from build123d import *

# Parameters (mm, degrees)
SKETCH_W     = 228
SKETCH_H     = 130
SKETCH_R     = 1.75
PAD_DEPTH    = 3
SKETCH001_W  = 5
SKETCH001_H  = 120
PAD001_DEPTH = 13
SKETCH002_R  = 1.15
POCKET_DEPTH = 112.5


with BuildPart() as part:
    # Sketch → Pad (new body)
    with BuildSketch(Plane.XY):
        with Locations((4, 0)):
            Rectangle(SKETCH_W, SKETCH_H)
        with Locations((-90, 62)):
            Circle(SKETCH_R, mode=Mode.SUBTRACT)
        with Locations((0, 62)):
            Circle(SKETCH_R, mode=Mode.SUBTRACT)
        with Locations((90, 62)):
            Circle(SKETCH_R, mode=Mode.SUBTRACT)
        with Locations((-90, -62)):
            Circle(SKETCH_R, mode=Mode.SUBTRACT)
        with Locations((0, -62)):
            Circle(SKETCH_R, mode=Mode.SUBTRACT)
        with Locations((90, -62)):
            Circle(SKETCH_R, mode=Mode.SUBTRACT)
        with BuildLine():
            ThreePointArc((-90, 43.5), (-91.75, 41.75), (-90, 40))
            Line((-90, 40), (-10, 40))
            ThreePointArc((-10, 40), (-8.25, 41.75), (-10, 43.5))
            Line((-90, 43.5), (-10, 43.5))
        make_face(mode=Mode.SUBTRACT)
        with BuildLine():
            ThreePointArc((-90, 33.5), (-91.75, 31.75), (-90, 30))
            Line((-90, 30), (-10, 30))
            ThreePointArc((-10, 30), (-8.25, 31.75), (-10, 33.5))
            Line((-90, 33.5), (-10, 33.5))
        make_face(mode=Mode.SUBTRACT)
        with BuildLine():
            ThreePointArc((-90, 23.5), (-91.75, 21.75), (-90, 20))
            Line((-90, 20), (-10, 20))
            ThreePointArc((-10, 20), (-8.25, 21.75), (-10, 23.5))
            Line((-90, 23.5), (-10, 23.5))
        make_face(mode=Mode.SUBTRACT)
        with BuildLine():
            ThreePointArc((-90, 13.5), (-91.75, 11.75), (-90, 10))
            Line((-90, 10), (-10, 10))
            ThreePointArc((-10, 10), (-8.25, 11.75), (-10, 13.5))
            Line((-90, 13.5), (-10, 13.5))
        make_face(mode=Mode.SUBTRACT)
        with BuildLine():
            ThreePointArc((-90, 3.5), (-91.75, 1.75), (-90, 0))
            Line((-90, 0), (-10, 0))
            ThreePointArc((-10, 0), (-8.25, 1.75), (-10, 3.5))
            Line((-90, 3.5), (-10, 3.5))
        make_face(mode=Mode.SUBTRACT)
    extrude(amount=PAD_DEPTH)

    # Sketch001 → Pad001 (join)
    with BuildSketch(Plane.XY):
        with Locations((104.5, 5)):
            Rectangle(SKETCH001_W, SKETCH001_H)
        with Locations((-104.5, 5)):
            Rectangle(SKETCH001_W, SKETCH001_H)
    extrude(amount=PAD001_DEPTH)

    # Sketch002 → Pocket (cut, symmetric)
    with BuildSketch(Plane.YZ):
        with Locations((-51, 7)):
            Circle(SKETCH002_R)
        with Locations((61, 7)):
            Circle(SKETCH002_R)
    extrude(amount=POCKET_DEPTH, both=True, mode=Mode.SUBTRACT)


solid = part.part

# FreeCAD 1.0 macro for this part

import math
import FreeCAD as App
import Part
import Sketcher

V = App.Vector
Q = App.Units.Quantity


def add_polygon(sketch, points):
    """Adds a closed chain of lines whose ends are joined by coincident constraints."""
    first, n = sketch.GeometryCount, len(points)
    for a, b in zip(points, points[1:] + points[:1]):
        sketch.addGeometry(Part.LineSegment(App.Vector(*a, 0), App.Vector(*b, 0)), False)
    for i in range(n):
        sketch.addConstraint(Sketcher.Constraint("Coincident", first + i, 2, first + (i + 1) % n, 1))

doc = App.newDocument("Part")
body = doc.addObject("PartDesign::Body", "Body")

sketch1 = body.newObject("Sketcher::SketchObject", "Sketch")
sketch1.AttachmentSupport = (doc.getObject("XY_Plane"), [""])
sketch1.MapMode = "FlatFace"
add_polygon(sketch1, [(-110, 65), (-110, -65), (118, -65), (118, 65)])
sketch1.addGeometry(Part.Circle(V(-90, -62, 0), V(0, 0, 1), 1.75), False)
sketch1.addGeometry(Part.Circle(V(0, -62, 0), V(0, 0, 1), 1.75), False)
sketch1.addGeometry(Part.Circle(V(90, -62, 0), V(0, 0, 1), 1.75), False)
sketch1.addGeometry(Part.ArcOfCircle(Part.Circle(V(-90, 1.75, 0), V(0, 0, 1), 1.75), math.radians(90), math.radians(270)), False)
sketch1.addGeometry(Part.LineSegment(V(-90, 3.5, 0), V(-10, 3.5, 0)), False)
sketch1.addGeometry(Part.ArcOfCircle(Part.Circle(V(-10, 1.75, 0), V(0, 0, 1), 1.75), math.radians(-90), math.radians(90)), False)
sketch1.addGeometry(Part.LineSegment(V(-10, 0, 0), V(-90, 0, 0)), False)
sketch1.addGeometry(Part.ArcOfCircle(Part.Circle(V(-90, 11.75, 0), V(0, 0, 1), 1.75), math.radians(90), math.radians(270)), False)
sketch1.addGeometry(Part.LineSegment(V(-90, 13.5, 0), V(-10, 13.5, 0)), False)
sketch1.addGeometry(Part.ArcOfCircle(Part.Circle(V(-10, 11.75, 0), V(0, 0, 1), 1.75), math.radians(-90), math.radians(90)), False)
sketch1.addGeometry(Part.LineSegment(V(-10, 10, 0), V(-90, 10, 0)), False)
sketch1.addGeometry(Part.ArcOfCircle(Part.Circle(V(-90, 21.75, 0), V(0, 0, 1), 1.75), math.radians(90), math.radians(270)), False)
sketch1.addGeometry(Part.LineSegment(V(-90, 23.5, 0), V(-10, 23.5, 0)), False)
sketch1.addGeometry(Part.ArcOfCircle(Part.Circle(V(-10, 21.75, 0), V(0, 0, 1), 1.75), math.radians(-90), math.radians(90)), False)
sketch1.addGeometry(Part.LineSegment(V(-10, 20, 0), V(-90, 20, 0)), False)
sketch1.addGeometry(Part.ArcOfCircle(Part.Circle(V(-90, 31.75, 0), V(0, 0, 1), 1.75), math.radians(90), math.radians(270)), False)
sketch1.addGeometry(Part.LineSegment(V(-90, 33.5, 0), V(-10, 33.5, 0)), False)
sketch1.addGeometry(Part.ArcOfCircle(Part.Circle(V(-10, 31.75, 0), V(0, 0, 1), 1.75), math.radians(-90), math.radians(90)), False)
sketch1.addGeometry(Part.LineSegment(V(-10, 30, 0), V(-90, 30, 0)), False)
sketch1.addGeometry(Part.ArcOfCircle(Part.Circle(V(-90, 41.75, 0), V(0, 0, 1), 1.75), math.radians(90), math.radians(270)), False)
sketch1.addGeometry(Part.LineSegment(V(-90, 43.5, 0), V(-10, 43.5, 0)), False)
sketch1.addGeometry(Part.ArcOfCircle(Part.Circle(V(-10, 41.75, 0), V(0, 0, 1), 1.75), math.radians(-90), math.radians(90)), False)
sketch1.addGeometry(Part.LineSegment(V(-10, 40, 0), V(-90, 40, 0)), False)
sketch1.addGeometry(Part.Circle(V(-90, 62, 0), V(0, 0, 1), 1.75), False)
sketch1.addGeometry(Part.Circle(V(0, 62, 0), V(0, 0, 1), 1.75), False)
sketch1.addGeometry(Part.Circle(V(90, 62, 0), V(0, 0, 1), 1.75), False)
sketch1.addConstraint([
    Sketcher.Constraint("Tangent", 7, 1, 8, 1),
    Sketcher.Constraint("Tangent", 8, 2, 9, 2),
    Sketcher.Constraint("Tangent", 9, 1, 10, 1),
    Sketcher.Constraint("Tangent", 10, 2, 7, 2),
    Sketcher.Constraint("Tangent", 11, 1, 12, 1),
    Sketcher.Constraint("Tangent", 12, 2, 13, 2),
    Sketcher.Constraint("Tangent", 13, 1, 14, 1),
    Sketcher.Constraint("Tangent", 14, 2, 11, 2),
    Sketcher.Constraint("Tangent", 15, 1, 16, 1),
    Sketcher.Constraint("Tangent", 16, 2, 17, 2),
    Sketcher.Constraint("Tangent", 17, 1, 18, 1),
    Sketcher.Constraint("Tangent", 18, 2, 15, 2),
    Sketcher.Constraint("Tangent", 19, 1, 20, 1),
    Sketcher.Constraint("Tangent", 20, 2, 21, 2),
    Sketcher.Constraint("Tangent", 21, 1, 22, 1),
    Sketcher.Constraint("Tangent", 22, 2, 19, 2),
    Sketcher.Constraint("Tangent", 23, 1, 24, 1),
    Sketcher.Constraint("Tangent", 24, 2, 25, 2),
    Sketcher.Constraint("Tangent", 25, 1, 26, 1),
    Sketcher.Constraint("Tangent", 26, 2, 23, 2),
    Sketcher.Constraint("Vertical", 0),
    Sketcher.Constraint("Horizontal", 1),
    Sketcher.Constraint("Vertical", 2),
    Sketcher.Constraint("Horizontal", 3),
    Sketcher.Constraint("Horizontal", 8),
    Sketcher.Constraint("Horizontal", 10),
    Sketcher.Constraint("Horizontal", 12),
    Sketcher.Constraint("Horizontal", 14),
    Sketcher.Constraint("Horizontal", 16),
    Sketcher.Constraint("Horizontal", 18),
    Sketcher.Constraint("Horizontal", 20),
    Sketcher.Constraint("Horizontal", 22),
    Sketcher.Constraint("Horizontal", 24),
    Sketcher.Constraint("Horizontal", 26),
    Sketcher.Constraint("Equal", 4, 5),
    Sketcher.Constraint("Equal", 5, 6),
    Sketcher.Constraint("Equal", 6, 7),
    Sketcher.Constraint("Equal", 9, 11),
    Sketcher.Constraint("Equal", 13, 15),
    Sketcher.Constraint("Equal", 17, 19),
    Sketcher.Constraint("Equal", 21, 23),
    Sketcher.Constraint("Equal", 25, 27),
    Sketcher.Constraint("Equal", 27, 28),
    Sketcher.Constraint("Equal", 28, 29),
    Sketcher.Constraint("Symmetric", 6, 3, 27, 3, -1, 1),
    Sketcher.Constraint("Symmetric", 5, 3, 28, 3, -1, 1),
    Sketcher.Constraint("Symmetric", 4, 3, 29, 3, -1, 1),
    Sketcher.Constraint("Symmetric", 4, 3, 6, 3, -2),
    Sketcher.Constraint("PointOnObject", 5, 3, -2),
    Sketcher.Constraint("PointOnObject", 9, 1, -1),
    Sketcher.Constraint("Horizontal", 4, 3, 5, 3),
    Sketcher.Constraint("Vertical", 4, 3, 7, 3),
    Sketcher.Constraint("Vertical", 7, 3, 11, 3),
    Sketcher.Constraint("Vertical", 9, 3, 13, 3),
    Sketcher.Constraint("Vertical", 11, 3, 15, 3),
    Sketcher.Constraint("Vertical", 13, 3, 17, 3),
    Sketcher.Constraint("Vertical", 15, 3, 19, 3),
    Sketcher.Constraint("Vertical", 17, 3, 21, 3),
    Sketcher.Constraint("Vertical", 19, 3, 23, 3),
    Sketcher.Constraint("Vertical", 21, 3, 25, 3),
    Sketcher.Constraint("Diameter", 4, Q("3.5 mm")),
    Sketcher.Constraint("DistanceX", 1, 1, 1, 2, Q("228 mm")),
    Sketcher.Constraint("DistanceX", 8, 1, 8, 2, Q("80 mm")),
    Sketcher.Constraint("DistanceY", 0, 2, 0, 1, Q("130 mm")),
    Sketcher.Constraint("DistanceX", 4, 3, -1, 1, Q("90 mm")),
    Sketcher.Constraint("DistanceY", 4, 3, -1, 1, Q("62 mm")),
    Sketcher.Constraint("DistanceX", 0, 2, -1, 1, Q("110 mm")),
    Sketcher.Constraint("DistanceY", 0, 2, -1, 1, Q("65 mm")),
    Sketcher.Constraint("DistanceY", -1, 1, 13, 1, Q("10 mm")),
    Sketcher.Constraint("DistanceY", -1, 1, 17, 1, Q("20 mm")),
    Sketcher.Constraint("DistanceY", -1, 1, 21, 1, Q("30 mm")),
    Sketcher.Constraint("DistanceY", -1, 1, 25, 1, Q("40 mm")),
])
pad1 = body.newObject("PartDesign::Pad", "Pad")
pad1.Profile = sketch1
pad1.Length = 3

sketch2 = body.newObject("Sketcher::SketchObject", "Sketch001")
sketch2.AttachmentSupport = (doc.getObject("XY_Plane"), [""])
sketch2.MapMode = "FlatFace"
add_polygon(sketch2, [(102, 65), (102, -55), (107, -55), (107, 65)])
add_polygon(sketch2, [(-107, 65), (-107, -55), (-102, -55), (-102, 65)])
sketch2.addConstraint([
    Sketcher.Constraint("Vertical", 0),
    Sketcher.Constraint("Horizontal", 1),
    Sketcher.Constraint("Vertical", 2),
    Sketcher.Constraint("Horizontal", 3),
    Sketcher.Constraint("Vertical", 4),
    Sketcher.Constraint("Horizontal", 5),
    Sketcher.Constraint("Vertical", 6),
    Sketcher.Constraint("Horizontal", 7),
    Sketcher.Constraint("Symmetric", 1, 2, 4, 2, -2),
    Sketcher.Constraint("Symmetric", 3, 2, 6, 2, -2),
    Sketcher.Constraint("DistanceX", 1, 1, 1, 2, Q("5 mm")),
    Sketcher.Constraint("DistanceY", 0, 2, 0, 1, Q("120 mm")),
    Sketcher.Constraint("DistanceX", -1, 1, 0, 2, Q("102 mm")),
    Sketcher.Constraint("DistanceY", 0, 2, -1, 1, Q("55 mm")),
])
pad2 = body.newObject("PartDesign::Pad", "Pad001")
pad2.Profile = sketch2
pad2.Length = 13

sketch3 = body.newObject("Sketcher::SketchObject", "Sketch002")
sketch3.AttachmentSupport = (doc.getObject("YZ_Plane"), [""])
sketch3.MapMode = "FlatFace"
sketch3.addGeometry([
    Part.Circle(V(-51, 7, 0), V(0, 0, 1), 1.15),
    Part.Circle(V(61, 7, 0), V(0, 0, 1), 1.15),
], False)
sketch3.addConstraint([
    Sketcher.Constraint("Equal", 0, 1),
    Sketcher.Constraint("Horizontal", 0, 3, 1, 3),
    Sketcher.Constraint("Diameter", 0, Q("2.3 mm")),
    Sketcher.Constraint("DistanceX", 0, 3, -1, 1, Q("51 mm")),
    Sketcher.Constraint("DistanceY", -1, 1, 0, 3, Q("7 mm")),
    Sketcher.Constraint("DistanceX", -1, 1, 1, 3, Q("61 mm")),
])
pocket1 = body.newObject("PartDesign::Pocket", "Pocket")
pocket1.Profile = sketch3
pocket1.Length = 225
pocket1.Midplane = True

doc.recompute()
